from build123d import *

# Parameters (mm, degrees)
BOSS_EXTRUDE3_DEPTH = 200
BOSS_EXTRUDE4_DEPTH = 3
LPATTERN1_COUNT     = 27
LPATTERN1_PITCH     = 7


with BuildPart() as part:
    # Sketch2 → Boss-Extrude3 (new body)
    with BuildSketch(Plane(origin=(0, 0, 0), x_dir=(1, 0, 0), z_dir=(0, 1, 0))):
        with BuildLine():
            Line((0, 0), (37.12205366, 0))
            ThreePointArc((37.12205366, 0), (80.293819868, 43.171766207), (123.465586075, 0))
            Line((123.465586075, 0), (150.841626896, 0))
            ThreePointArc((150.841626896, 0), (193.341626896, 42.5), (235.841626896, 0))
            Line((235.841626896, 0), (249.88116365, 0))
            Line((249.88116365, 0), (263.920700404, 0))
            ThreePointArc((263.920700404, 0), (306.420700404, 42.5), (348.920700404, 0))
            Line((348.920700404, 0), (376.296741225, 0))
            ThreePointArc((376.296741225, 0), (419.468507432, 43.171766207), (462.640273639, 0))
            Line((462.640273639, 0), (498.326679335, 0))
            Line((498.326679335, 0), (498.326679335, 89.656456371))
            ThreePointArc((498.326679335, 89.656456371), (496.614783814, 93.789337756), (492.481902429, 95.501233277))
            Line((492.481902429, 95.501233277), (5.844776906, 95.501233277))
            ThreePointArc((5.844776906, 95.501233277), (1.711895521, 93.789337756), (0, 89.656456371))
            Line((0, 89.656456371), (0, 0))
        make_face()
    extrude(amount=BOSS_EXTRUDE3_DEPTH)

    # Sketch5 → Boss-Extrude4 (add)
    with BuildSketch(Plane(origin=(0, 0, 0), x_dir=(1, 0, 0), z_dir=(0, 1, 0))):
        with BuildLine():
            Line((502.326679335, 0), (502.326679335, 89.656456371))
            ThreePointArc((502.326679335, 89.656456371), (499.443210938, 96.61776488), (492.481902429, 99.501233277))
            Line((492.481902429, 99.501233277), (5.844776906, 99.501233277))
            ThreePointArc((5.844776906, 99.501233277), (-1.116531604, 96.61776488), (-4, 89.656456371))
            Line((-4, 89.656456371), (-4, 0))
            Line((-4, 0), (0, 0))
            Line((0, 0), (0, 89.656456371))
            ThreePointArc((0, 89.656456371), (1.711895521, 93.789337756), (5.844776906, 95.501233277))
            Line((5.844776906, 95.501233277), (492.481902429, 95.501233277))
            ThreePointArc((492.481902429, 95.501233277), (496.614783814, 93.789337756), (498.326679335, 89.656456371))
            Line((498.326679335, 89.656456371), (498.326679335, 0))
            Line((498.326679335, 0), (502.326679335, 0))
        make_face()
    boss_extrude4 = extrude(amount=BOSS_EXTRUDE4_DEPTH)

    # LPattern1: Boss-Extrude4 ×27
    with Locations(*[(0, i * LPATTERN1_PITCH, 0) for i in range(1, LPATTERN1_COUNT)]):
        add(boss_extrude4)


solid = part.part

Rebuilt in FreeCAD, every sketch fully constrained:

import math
import FreeCAD as App
import Part
import Sketcher
from FreeCAD import Vector
Q = App.Units.Quantity

doc = App.newDocument("Part")
params = doc.addObject("Spreadsheet::Sheet", "Params")
for row, (alias, value) in enumerate([
    ("sketch1_radius", "42.5 mm"),
    ("pad1_length", "200 mm"),
    ("sketch2_width", "4 mm"),
    ("pad2_length", "3 mm"),
    ("linearpattern_pitch", "7 mm"),
], start=1):
    params.set(f"A{row}", alias)
    params.set(f"B{row}", "=" + value)
    params.setAlias(f"B{row}", alias)

body = doc.addObject("PartDesign::Body", "Body")

# Sketch on XZ plane
sketch1 = doc.addObject("Sketcher::SketchObject", "Sketch")
body.addObject(sketch1)
sketch1.AttachmentSupport = (doc.XZ_Plane, [""])
sketch1.MapMode = "FlatFace"
sketch1.addGeometry([
    Part.LineSegment(Vector(0, 0, 0), Vector(37, 0, 0)),  # 0
    Part.ArcOfCircle(Part.Circle(Vector(80, 0, 0), Vector(0, 0, 1), 43), math.radians(-180), math.radians(0)),  # 1
    Part.LineSegment(Vector(123, 0, 0), Vector(151, 0, 0)),  # 2
    Part.ArcOfCircle(Part.Circle(Vector(193, 0, 0), Vector(0, 0, 1), 42), math.radians(180), math.radians(360)),  # 3
    Part.LineSegment(Vector(236, 0, 0), Vector(264, 0, 0)),  # 4
    Part.ArcOfCircle(Part.Circle(Vector(306, 0, 0), Vector(0, 0, 1), 42), math.radians(180), math.radians(360)),  # 5
    Part.LineSegment(Vector(349, 0, 0), Vector(376, 0, 0)),  # 6
    Part.ArcOfCircle(Part.Circle(Vector(419, 0, 0), Vector(0, 0, 1), 43), math.radians(180), math.radians(360)),  # 7
    Part.LineSegment(Vector(463, 0, 0), Vector(498, 0, 0)),  # 8
    Part.LineSegment(Vector(498, 0, 0), Vector(498, -90, 0)),  # 9
    Part.ArcOfCircle(Part.Circle(Vector(492, -90, 0), Vector(0, 0, 1), 6), math.radians(-90), math.radians(0)),  # 10
    Part.LineSegment(Vector(492, -96, 0), Vector(6, -96, 0)),  # 11
    Part.ArcOfCircle(Part.Circle(Vector(6, -90, 0), Vector(0, 0, 1), 6), math.radians(180), math.radians(270)),  # 12
    Part.LineSegment(Vector(0, -90, 0), Vector(0, 0, 0)),  # 13
], False)
sketch1.addConstraint([
    Sketcher.Constraint("Coincident", 0, 2, 1, 1),
    Sketcher.Constraint("Coincident", 1, 2, 2, 1),
    Sketcher.Constraint("Coincident", 2, 2, 3, 1),
    Sketcher.Constraint("Coincident", 3, 2, 4, 1),
    Sketcher.Constraint("Coincident", 4, 2, 5, 1),
    Sketcher.Constraint("Coincident", 5, 2, 6, 1),
    Sketcher.Constraint("Coincident", 6, 2, 7, 1),
    Sketcher.Constraint("Coincident", 7, 2, 8, 1),
    Sketcher.Constraint("Coincident", 8, 2, 9, 1),
    Sketcher.Constraint("Tangent", 9, 2, 10, 2),
    Sketcher.Constraint("Tangent", 10, 1, 11, 1),
    Sketcher.Constraint("Tangent", 11, 2, 12, 2),
    Sketcher.Constraint("Tangent", 12, 1, 13, 1),
    Sketcher.Constraint("Coincident", 13, 2, 0, 1),
    Sketcher.Constraint("Horizontal", 0),
    Sketcher.Constraint("Horizontal", 2),
    Sketcher.Constraint("Horizontal", 4),
    Sketcher.Constraint("Horizontal", 6),
    Sketcher.Constraint("Horizontal", 8),
    Sketcher.Constraint("Vertical", 9),
    Sketcher.Constraint("Horizontal", 11),
    Sketcher.Constraint("Vertical", 13),
    Sketcher.Constraint("Coincident", 13, 2, -1, 1),
    Sketcher.Constraint("Equal", 3, 5),
    Sketcher.Constraint("Equal", 1, 7),
    Sketcher.Constraint("Equal", 10, 12),
    Sketcher.Constraint("PointOnObject", 1, 3, -1),
    Sketcher.Constraint("PointOnObject", 3, 3, -1),
    Sketcher.Constraint("PointOnObject", 5, 3, -1),
    Sketcher.Constraint("PointOnObject", 7, 3, -1),
    Sketcher.Constraint("PointOnObject", 1, 2, -1),
    Sketcher.Constraint("PointOnObject", 3, 2, -1),
    Sketcher.Constraint("PointOnObject", 5, 2, -1),
    Sketcher.Constraint("PointOnObject", 7, 2, -1),
    Sketcher.Constraint("Equal", 2, 6),
    Sketcher.Constraint("Radius", 3, Q("42.5 mm")),
    Sketcher.Constraint("Radius", 1, Q("43.171766 mm")),
    Sketcher.Constraint("Radius", 10, Q("5.844777 mm")),
    Sketcher.Constraint("DistanceX", 2, 1, 2, 2, Q("27.376041 mm")),
    Sketcher.Constraint("DistanceX", -1, 1, 5, 3, Q("306.4207 mm")),
    Sketcher.Constraint("DistanceX", 0, 1, 0, 2, Q("37.122054 mm")),
    Sketcher.Constraint("DistanceX", 8, 1, 8, 2, Q("35.686406 mm")),
    Sketcher.Constraint("DistanceY", 9, 2, 9, 1, Q("89.656456 mm")),
])
sketch1.setExpression("Constraints[35]", "Params.sketch1_radius")
pad1 = doc.addObject("PartDesign::Pad", "Pad")
body.addObject(pad1)
pad1.Profile = sketch1
pad1.setExpression("Length", "Params.pad1_length")
pad1.Reversed = True

# Sketch on XZ plane
sketch2 = doc.addObject("Sketcher::SketchObject", "Sketch001")
body.addObject(sketch2)
sketch2.AttachmentSupport = (doc.XZ_Plane, [""])
sketch2.MapMode = "FlatFace"
sketch2.addGeometry([
    Part.LineSegment(Vector(502.3, 0, 0), Vector(502.3, -89.7, 0)),  # 0
    Part.ArcOfCircle(Part.Circle(Vector(492.5, -89.7, 0), Vector(0, 0, 1), 9.8), math.radians(-90), math.radians(0)),  # 1
    Part.LineSegment(Vector(492.5, -99.5, 0), Vector(5.8, -99.5, 0)),  # 2
    Part.ArcOfCircle(Part.Circle(Vector(5.8, -89.7, 0), Vector(0, 0, 1), 9.8), math.radians(180), math.radians(270)),  # 3
    Part.LineSegment(Vector(-4, -89.7, 0), Vector(-4, 0, 0)),  # 4
    Part.LineSegment(Vector(-4, 0, 0), Vector(0, 0, 0)),  # 5
    Part.LineSegment(Vector(0, 0, 0), Vector(0, -89.7, 0)),  # 6
    Part.ArcOfCircle(Part.Circle(Vector(5.8, -89.7, 0), Vector(0, 0, 1), 5.8), math.radians(180), math.radians(270)),  # 7
    Part.LineSegment(Vector(5.8, -95.5, 0), Vector(492.5, -95.5, 0)),  # 8
    Part.ArcOfCircle(Part.Circle(Vector(492.5, -89.7, 0), Vector(0, 0, 1), 5.8), math.radians(-90), math.radians(0)),  # 9
    Part.LineSegment(Vector(498.3, -89.7, 0), Vector(498.3, 0, 0)),  # 10
    Part.LineSegment(Vector(498.3, 0, 0), Vector(502.3, 0, 0)),  # 11
], False)
sketch2.addConstraint([
    Sketcher.Constraint("Tangent", 0, 2, 1, 2),
    Sketcher.Constraint("Tangent", 1, 1, 2, 1),
    Sketcher.Constraint("Tangent", 2, 2, 3, 2),
    Sketcher.Constraint("Tangent", 3, 1, 4, 1),
    Sketcher.Constraint("Coincident", 4, 2, 5, 1),
    Sketcher.Constraint("Coincident", 5, 2, 6, 1),
    Sketcher.Constraint("Tangent", 6, 2, 7, 1),
    Sketcher.Constraint("Tangent", 7, 2, 8, 1),
    Sketcher.Constraint("Tangent", 8, 2, 9, 1),
    Sketcher.Constraint("Tangent", 9, 2, 10, 1),
    Sketcher.Constraint("Coincident", 10, 2, 11, 1),
    Sketcher.Constraint("Coincident", 11, 2, 0, 1),
    Sketcher.Constraint("Vertical", 0),
    Sketcher.Constraint("Horizontal", 2),
    Sketcher.Constraint("Vertical", 4),
    Sketcher.Constraint("Horizontal", 5),
    Sketcher.Constraint("Vertical", 6),
    Sketcher.Constraint("Horizontal", 8),
    Sketcher.Constraint("Vertical", 10),
    Sketcher.Constraint("Horizontal", 11),
    Sketcher.Constraint("Coincident", 5, 2, -1, 1),
    Sketcher.Constraint("Coincident", 7, 3, 3, 3),
    Sketcher.Constraint("Coincident", 9, 3, 1, 3),
    Sketcher.Constraint("Equal", 1, 3),
    Sketcher.Constraint("PointOnObject", 10, 2, -1),
    Sketcher.Constraint("DistanceX", 5, 1, 5, 2, Q("4 mm")),
    Sketcher.Constraint("Radius", 1, Q("9.844777 mm")),
    Sketcher.Constraint("DistanceX", 2, 2, 2, 1, Q("486.637126 mm")),
    Sketcher.Constraint("DistanceY", 0, 2, 0, 1, Q("89.656456 mm")),
])
sketch2.setExpression("Constraints[25]", "Params.sketch2_width")
pad2 = doc.addObject("PartDesign::Pad", "Pad001")
body.addObject(pad2)
pad2.Profile = sketch2
pad2.setExpression("Length", "Params.pad2_length")
pad2.Reversed = True
doc.recompute()

linearpattern = doc.addObject("PartDesign::LinearPattern", "LinearPattern")
body.addObject(linearpattern)
linearpattern.Originals = [pad2]
linearpattern.Direction = (doc.Y_Axis, [""])
linearpattern.Mode = "offset"
linearpattern.setExpression("Offset", "Params.linearpattern_pitch")
linearpattern.Occurrences = 27
body.Tip = linearpattern

doc.recompute()
